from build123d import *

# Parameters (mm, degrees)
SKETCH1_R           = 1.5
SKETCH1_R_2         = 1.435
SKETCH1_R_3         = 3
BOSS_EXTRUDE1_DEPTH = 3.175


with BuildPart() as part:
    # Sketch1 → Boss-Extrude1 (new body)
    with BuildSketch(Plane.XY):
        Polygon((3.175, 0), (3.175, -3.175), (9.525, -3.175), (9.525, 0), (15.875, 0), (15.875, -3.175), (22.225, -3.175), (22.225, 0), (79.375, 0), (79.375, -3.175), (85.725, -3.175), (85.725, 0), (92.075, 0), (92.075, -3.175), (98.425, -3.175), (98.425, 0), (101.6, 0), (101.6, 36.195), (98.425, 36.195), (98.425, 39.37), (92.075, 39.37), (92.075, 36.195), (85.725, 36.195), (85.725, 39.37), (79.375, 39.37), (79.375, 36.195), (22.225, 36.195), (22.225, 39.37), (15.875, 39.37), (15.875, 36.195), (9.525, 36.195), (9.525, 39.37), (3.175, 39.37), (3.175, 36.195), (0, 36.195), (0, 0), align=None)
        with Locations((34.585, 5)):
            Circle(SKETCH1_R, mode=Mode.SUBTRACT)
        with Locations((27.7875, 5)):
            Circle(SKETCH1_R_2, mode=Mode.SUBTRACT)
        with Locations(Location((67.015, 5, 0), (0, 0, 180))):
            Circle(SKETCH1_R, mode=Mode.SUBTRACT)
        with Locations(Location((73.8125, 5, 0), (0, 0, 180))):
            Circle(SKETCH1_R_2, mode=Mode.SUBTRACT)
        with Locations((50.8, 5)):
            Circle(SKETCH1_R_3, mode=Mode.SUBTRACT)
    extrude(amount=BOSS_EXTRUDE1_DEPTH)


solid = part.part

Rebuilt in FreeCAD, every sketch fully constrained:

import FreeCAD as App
import Part
import Sketcher
from FreeCAD import Vector
Q = App.Units.Quantity

doc = App.newDocument("Part")
body = doc.addObject("PartDesign::Body", "Body")

sketch1 = body.newObject("Sketcher::SketchObject", "Sketch")
sketch1.AttachmentSupport = (doc.getObject("XY_Plane"), [""])
sketch1.MapMode = "FlatFace"
sketch1.addGeometry(Part.LineSegment(Vector(3.175, 0, 0), Vector(3.175, -3.175, 0)), False)
sketch1.addGeometry(Part.LineSegment(Vector(3.175, -3.175, 0), Vector(9.525, -3.175, 0)), False)
sketch1.addGeometry(Part.LineSegment(Vector(9.525, -3.175, 0), Vector(9.525, 0, 0)), False)
sketch1.addGeometry(Part.LineSegment(Vector(9.525, 0, 0), Vector(15.875, 0, 0)), False)
sketch1.addGeometry(Part.LineSegment(Vector(15.875, 0, 0), Vector(15.875, -3.175, 0)), False)
sketch1.addGeometry(Part.LineSegment(Vector(15.875, -3.175, 0), Vector(22.225, -3.175, 0)), False)
sketch1.addGeometry(Part.LineSegment(Vector(22.225, -3.175, 0), Vector(22.225, 0, 0)), False)
sketch1.addGeometry(Part.LineSegment(Vector(22.225, 0, 0), Vector(79.375, 0, 0)), False)
sketch1.addGeometry(Part.LineSegment(Vector(79.375, 0, 0), Vector(79.375, -3.175, 0)), False)
sketch1.addGeometry(Part.LineSegment(Vector(79.375, -3.175, 0), Vector(85.725, -3.175, 0)), False)
sketch1.addGeometry(Part.LineSegment(Vector(85.725, -3.175, 0), Vector(85.725, 0, 0)), False)
sketch1.addGeometry(Part.LineSegment(Vector(85.725, 0, 0), Vector(92.075, 0, 0)), False)
sketch1.addGeometry(Part.LineSegment(Vector(92.075, 0, 0), Vector(92.075, -3.175, 0)), False)
sketch1.addGeometry(Part.LineSegment(Vector(92.075, -3.175, 0), Vector(98.425, -3.175, 0)), False)
sketch1.addGeometry(Part.LineSegment(Vector(98.425, -3.175, 0), Vector(98.425, 0, 0)), False)
sketch1.addGeometry(Part.LineSegment(Vector(98.425, 0, 0), Vector(101.6, 0, 0)), False)
sketch1.addGeometry(Part.LineSegment(Vector(101.6, 0, 0), Vector(101.6, 36.195, 0)), False)
sketch1.addGeometry(Part.LineSegment(Vector(101.6, 36.195, 0), Vector(98.425, 36.195, 0)), False)
sketch1.addGeometry(Part.LineSegment(Vector(98.425, 36.195, 0), Vector(98.425, 39.37, 0)), False)
sketch1.addGeometry(Part.LineSegment(Vector(98.425, 39.37, 0), Vector(92.075, 39.37, 0)), False)
sketch1.addGeometry(Part.LineSegment(Vector(92.075, 39.37, 0), Vector(92.075, 36.195, 0)), False)
sketch1.addGeometry(Part.LineSegment(Vector(92.075, 36.195, 0), Vector(85.725, 36.195, 0)), False)
sketch1.addGeometry(Part.LineSegment(Vector(85.725, 36.195, 0), Vector(85.725, 39.37, 0)), False)
sketch1.addGeometry(Part.LineSegment(Vector(85.725, 39.37, 0), Vector(79.375, 39.37, 0)), False)
sketch1.addGeometry(Part.LineSegment(Vector(79.375, 39.37, 0), Vector(79.375, 36.195, 0)), False)
sketch1.addGeometry(Part.LineSegment(Vector(79.375, 36.195, 0), Vector(22.225, 36.195, 0)), False)
sketch1.addGeometry(Part.LineSegment(Vector(22.225, 36.195, 0), Vector(22.225, 39.37, 0)), False)
sketch1.addGeometry(Part.LineSegment(Vector(22.225, 39.37, 0), Vector(15.875, 39.37, 0)), False)
sketch1.addGeometry(Part.LineSegment(Vector(15.875, 39.37, 0), Vector(15.875, 36.195, 0)), False)
sketch1.addGeometry(Part.LineSegment(Vector(15.875, 36.195, 0), Vector(9.525, 36.195, 0)), False)
sketch1.addGeometry(Part.LineSegment(Vector(9.525, 36.195, 0), Vector(9.525, 39.37, 0)), False)
sketch1.addGeometry(Part.LineSegment(Vector(9.525, 39.37, 0), Vector(3.175, 39.37, 0)), False)
sketch1.addGeometry(Part.LineSegment(Vector(3.175, 39.37, 0), Vector(3.175, 36.195, 0)), False)
sketch1.addGeometry(Part.LineSegment(Vector(3.175, 36.195, 0), Vector(0, 36.195, 0)), False)
sketch1.addGeometry(Part.LineSegment(Vector(0, 36.195, 0), Vector(0, 0, 0)), False)
sketch1.addGeometry(Part.LineSegment(Vector(0, 0, 0), Vector(3.175, 0, 0)), False)
sketch1.addGeometry(Part.Circle(Vector(27.7875, 5, 0), Vector(0, 0, 1), 1.435), False)
sketch1.addGeometry(Part.Circle(Vector(34.585, 5, 0), Vector(0, 0, 1), 1.5), False)
sketch1.addGeometry(Part.Circle(Vector(50.8, 5, 0), Vector(0, 0, 1), 3), False)
sketch1.addGeometry(Part.Circle(Vector(67.015, 5, 0), Vector(0, 0, 1), 1.5), False)
sketch1.addGeometry(Part.Circle(Vector(73.8125, 5, 0), Vector(0, 0, 1), 1.435), False)
sketch1.addConstraint(Sketcher.Constraint("Coincident", 0, 2, 1, 1))
sketch1.addConstraint(Sketcher.Constraint("Coincident", 1, 2, 2, 1))
sketch1.addConstraint(Sketcher.Constraint("Coincident", 2, 2, 3, 1))
sketch1.addConstraint(Sketcher.Constraint("Coincident", 3, 2, 4, 1))
sketch1.addConstraint(Sketcher.Constraint("Coincident", 4, 2, 5, 1))
sketch1.addConstraint(Sketcher.Constraint("Coincident", 5, 2, 6, 1))
sketch1.addConstraint(Sketcher.Constraint("Coincident", 6, 2, 7, 1))
sketch1.addConstraint(Sketcher.Constraint("Coincident", 7, 2, 8, 1))
sketch1.addConstraint(Sketcher.Constraint("Coincident", 8, 2, 9, 1))
sketch1.addConstraint(Sketcher.Constraint("Coincident", 9, 2, 10, 1))
sketch1.addConstraint(Sketcher.Constraint("Coincident", 10, 2, 11, 1))
sketch1.addConstraint(Sketcher.Constraint("Coincident", 11, 2, 12, 1))
sketch1.addConstraint(Sketcher.Constraint("Coincident", 12, 2, 13, 1))
sketch1.addConstraint(Sketcher.Constraint("Coincident", 13, 2, 14, 1))
sketch1.addConstraint(Sketcher.Constraint("Coincident", 14, 2, 15, 1))
sketch1.addConstraint(Sketcher.Constraint("Coincident", 15, 2, 16, 1))
sketch1.addConstraint(Sketcher.Constraint("Coincident", 16, 2, 17, 1))
sketch1.addConstraint(Sketcher.Constraint("Coincident", 17, 2, 18, 1))
sketch1.addConstraint(Sketcher.Constraint("Coincident", 18, 2, 19, 1))
sketch1.addConstraint(Sketcher.Constraint("Coincident", 19, 2, 20, 1))
sketch1.addConstraint(Sketcher.Constraint("Coincident", 20, 2, 21, 1))
sketch1.addConstraint(Sketcher.Constraint("Coincident", 21, 2, 22, 1))
sketch1.addConstraint(Sketcher.Constraint("Coincident", 22, 2, 23, 1))
sketch1.addConstraint(Sketcher.Constraint("Coincident", 23, 2, 24, 1))
sketch1.addConstraint(Sketcher.Constraint("Coincident", 24, 2, 25, 1))
sketch1.addConstraint(Sketcher.Constraint("Coincident", 25, 2, 26, 1))
sketch1.addConstraint(Sketcher.Constraint("Coincident", 26, 2, 27, 1))
sketch1.addConstraint(Sketcher.Constraint("Coincident", 27, 2, 28, 1))
sketch1.addConstraint(Sketcher.Constraint("Coincident", 28, 2, 29, 1))
sketch1.addConstraint(Sketcher.Constraint("Coincident", 29, 2, 30, 1))
sketch1.addConstraint(Sketcher.Constraint("Coincident", 30, 2, 31, 1))
sketch1.addConstraint(Sketcher.Constraint("Coincident", 31, 2, 32, 1))
sketch1.addConstraint(Sketcher.Constraint("Coincident", 32, 2, 33, 1))
sketch1.addConstraint(Sketcher.Constraint("Coincident", 33, 2, 34, 1))
sketch1.addConstraint(Sketcher.Constraint("Coincident", 34, 2, 35, 1))
sketch1.addConstraint(Sketcher.Constraint("Coincident", 35, 2, 0, 1))
sketch1.addConstraint(Sketcher.Constraint("Vertical", 0))
sketch1.addConstraint(Sketcher.Constraint("Horizontal", 1))
sketch1.addConstraint(Sketcher.Constraint("Vertical", 2))
sketch1.addConstraint(Sketcher.Constraint("Horizontal", 3))
sketch1.addConstraint(Sketcher.Constraint("Vertical", 4))
sketch1.addConstraint(Sketcher.Constraint("Horizontal", 5))
sketch1.addConstraint(Sketcher.Constraint("Vertical", 6))
sketch1.addConstraint(Sketcher.Constraint("Horizontal", 7))
sketch1.addConstraint(Sketcher.Constraint("Vertical", 8))
sketch1.addConstraint(Sketcher.Constraint("Horizontal", 9))
sketch1.addConstraint(Sketcher.Constraint("Vertical", 10))
sketch1.addConstraint(Sketcher.Constraint("Horizontal", 11))
sketch1.addConstraint(Sketcher.Constraint("Vertical", 12))
sketch1.addConstraint(Sketcher.Constraint("Horizontal", 13))
sketch1.addConstraint(Sketcher.Constraint("Vertical", 14))
sketch1.addConstraint(Sketcher.Constraint("Horizontal", 15))
sketch1.addConstraint(Sketcher.Constraint("Vertical", 16))
sketch1.addConstraint(Sketcher.Constraint("Horizontal", 17))
sketch1.addConstraint(Sketcher.Constraint("Vertical", 18))
sketch1.addConstraint(Sketcher.Constraint("Horizontal", 19))
sketch1.addConstraint(Sketcher.Constraint("Vertical", 20))
sketch1.addConstraint(Sketcher.Constraint("Horizontal", 21))
sketch1.addConstraint(Sketcher.Constraint("Vertical", 22))
sketch1.addConstraint(Sketcher.Constraint("Horizontal", 23))
sketch1.addConstraint(Sketcher.Constraint("Vertical", 24))
sketch1.addConstraint(Sketcher.Constraint("Horizontal", 25))
sketch1.addConstraint(Sketcher.Constraint("Vertical", 26))
sketch1.addConstraint(Sketcher.Constraint("Horizontal", 27))
sketch1.addConstraint(Sketcher.Constraint("Vertical", 28))
sketch1.addConstraint(Sketcher.Constraint("Horizontal", 29))
sketch1.addConstraint(Sketcher.Constraint("Vertical", 30))
sketch1.addConstraint(Sketcher.Constraint("Horizontal", 31))
sketch1.addConstraint(Sketcher.Constraint("Vertical", 32))
sketch1.addConstraint(Sketcher.Constraint("Horizontal", 33))
sketch1.addConstraint(Sketcher.Constraint("Vertical", 34))
sketch1.addConstraint(Sketcher.Constraint("Horizontal", 35))
sketch1.addConstraint(Sketcher.Constraint("Coincident", 34, 2, -1, 1))
sketch1.addConstraint(Sketcher.Constraint("Equal", 37, 39))
sketch1.addConstraint(Sketcher.Constraint("Equal", 36, 40))
sketch1.addConstraint(Sketcher.Constraint("PointOnObject", 2, 2, -1))
sketch1.addConstraint(Sketcher.Constraint("PointOnObject", 6, 2, -1))
sketch1.addConstraint(Sketcher.Constraint("PointOnObject", 10, 2, -1))
sketch1.addConstraint(Sketcher.Constraint("PointOnObject", 14, 2, -1))
sketch1.addConstraint(Sketcher.Constraint("Horizontal", 36, 3, 37, 3))
sketch1.addConstraint(Sketcher.Constraint("Horizontal", 37, 3, 38, 3))
sketch1.addConstraint(Sketcher.Constraint("Horizontal", 38, 3, 39, 3))
sketch1.addConstraint(Sketcher.Constraint("Horizontal", 39, 3, 40, 3))
sketch1.addConstraint(Sketcher.Constraint("Horizontal", 1, 2, 4, 2))
sketch1.addConstraint(Sketcher.Constraint("Horizontal", 5, 2, 8, 2))
sketch1.addConstraint(Sketcher.Constraint("Horizontal", 9, 2, 12, 2))
sketch1.addConstraint(Sketcher.Constraint("Horizontal", 17, 2, 20, 2))
sketch1.addConstraint(Sketcher.Constraint("Horizontal", 19, 2, 22, 2))
sketch1.addConstraint(Sketcher.Constraint("Horizontal", 21, 2, 24, 2))
sketch1.addConstraint(Sketcher.Constraint("Horizontal", 23, 2, 26, 2))
sketch1.addConstraint(Sketcher.Constraint("Horizontal", 25, 2, 28, 2))
sketch1.addConstraint(Sketcher.Constraint("Horizontal", 27, 2, 30, 2))
sketch1.addConstraint(Sketcher.Constraint("Horizontal", 29, 2, 32, 2))
sketch1.addConstraint(Sketcher.Constraint("Vertical", 14, 2, 17, 2))
sketch1.addConstraint(Sketcher.Constraint("Vertical", 12, 2, 19, 2))
sketch1.addConstraint(Sketcher.Constraint("Vertical", 10, 2, 21, 2))
sketch1.addConstraint(Sketcher.Constraint("Vertical", 8, 2, 23, 2))
sketch1.addConstraint(Sketcher.Constraint("Vertical", 6, 2, 25, 2))
sketch1.addConstraint(Sketcher.Constraint("Vertical", 4, 2, 27, 2))
sketch1.addConstraint(Sketcher.Constraint("Vertical", 2, 2, 29, 2))
sketch1.addConstraint(Sketcher.Constraint("Vertical", 0, 2, 31, 2))
sketch1.addConstraint(Sketcher.Constraint("Equal", 1, 3))
sketch1.addConstraint(Sketcher.Constraint("Equal", 3, 5))
sketch1.addConstraint(Sketcher.Constraint("Equal", 5, 9))
sketch1.addConstraint(Sketcher.Constraint("Equal", 9, 11))
sketch1.addConstraint(Sketcher.Constraint("Equal", 11, 13))
sketch1.addConstraint(Sketcher.Constraint("Equal", 17, 33))
sketch1.addConstraint(Sketcher.Constraint("Equal", 35, 0))
sketch1.addConstraint(Sketcher.Constraint("Equal", 14, 18))
sketch1.addConstraint(Sketcher.Constraint("DistanceX", -1, 1, 38, 3, Q("2 in")))
sketch1.addConstraint(Sketcher.Constraint("DistanceX", -1, 1, 15, 2, Q("4 in")))
sketch1.addConstraint(Sketcher.Constraint("DistanceX", 1, 1, 1, 2, Q("0.25 in")))
sketch1.addConstraint(Sketcher.Constraint("DistanceX", 7, 1, 7, 2, Q("2.25 in")))
sketch1.addConstraint(Sketcher.Constraint("Diameter", 36, Q("2.87 mm")))
sketch1.addConstraint(Sketcher.Constraint("Diameter", 37, Q("3 mm")))
sketch1.addConstraint(Sketcher.Constraint("Diameter", 38, Q("6 mm")))
sketch1.addConstraint(Sketcher.Constraint("DistanceY", 16, 1, 16, 2, Q("1.425 in")))
sketch1.addConstraint(Sketcher.Constraint("DistanceX", -1, 1, 36, 3, Q("27.7875 mm")))
sketch1.addConstraint(Sketcher.Constraint("DistanceY", -1, 1, 36, 3, Q("5 mm")))
sketch1.addConstraint(Sketcher.Constraint("DistanceX", -1, 1, 37, 3, Q("34.585 mm")))
sketch1.addConstraint(Sketcher.Constraint("DistanceX", -1, 1, 39, 3, Q("67.015 mm")))
sketch1.addConstraint(Sketcher.Constraint("DistanceX", -1, 1, 40, 3, Q("73.8125 mm")))
pad1 = body.newObject("PartDesign::Pad", "Pad")
pad1.Profile = sketch1
pad1.Length = Q("0.125 in")

doc.recompute()
